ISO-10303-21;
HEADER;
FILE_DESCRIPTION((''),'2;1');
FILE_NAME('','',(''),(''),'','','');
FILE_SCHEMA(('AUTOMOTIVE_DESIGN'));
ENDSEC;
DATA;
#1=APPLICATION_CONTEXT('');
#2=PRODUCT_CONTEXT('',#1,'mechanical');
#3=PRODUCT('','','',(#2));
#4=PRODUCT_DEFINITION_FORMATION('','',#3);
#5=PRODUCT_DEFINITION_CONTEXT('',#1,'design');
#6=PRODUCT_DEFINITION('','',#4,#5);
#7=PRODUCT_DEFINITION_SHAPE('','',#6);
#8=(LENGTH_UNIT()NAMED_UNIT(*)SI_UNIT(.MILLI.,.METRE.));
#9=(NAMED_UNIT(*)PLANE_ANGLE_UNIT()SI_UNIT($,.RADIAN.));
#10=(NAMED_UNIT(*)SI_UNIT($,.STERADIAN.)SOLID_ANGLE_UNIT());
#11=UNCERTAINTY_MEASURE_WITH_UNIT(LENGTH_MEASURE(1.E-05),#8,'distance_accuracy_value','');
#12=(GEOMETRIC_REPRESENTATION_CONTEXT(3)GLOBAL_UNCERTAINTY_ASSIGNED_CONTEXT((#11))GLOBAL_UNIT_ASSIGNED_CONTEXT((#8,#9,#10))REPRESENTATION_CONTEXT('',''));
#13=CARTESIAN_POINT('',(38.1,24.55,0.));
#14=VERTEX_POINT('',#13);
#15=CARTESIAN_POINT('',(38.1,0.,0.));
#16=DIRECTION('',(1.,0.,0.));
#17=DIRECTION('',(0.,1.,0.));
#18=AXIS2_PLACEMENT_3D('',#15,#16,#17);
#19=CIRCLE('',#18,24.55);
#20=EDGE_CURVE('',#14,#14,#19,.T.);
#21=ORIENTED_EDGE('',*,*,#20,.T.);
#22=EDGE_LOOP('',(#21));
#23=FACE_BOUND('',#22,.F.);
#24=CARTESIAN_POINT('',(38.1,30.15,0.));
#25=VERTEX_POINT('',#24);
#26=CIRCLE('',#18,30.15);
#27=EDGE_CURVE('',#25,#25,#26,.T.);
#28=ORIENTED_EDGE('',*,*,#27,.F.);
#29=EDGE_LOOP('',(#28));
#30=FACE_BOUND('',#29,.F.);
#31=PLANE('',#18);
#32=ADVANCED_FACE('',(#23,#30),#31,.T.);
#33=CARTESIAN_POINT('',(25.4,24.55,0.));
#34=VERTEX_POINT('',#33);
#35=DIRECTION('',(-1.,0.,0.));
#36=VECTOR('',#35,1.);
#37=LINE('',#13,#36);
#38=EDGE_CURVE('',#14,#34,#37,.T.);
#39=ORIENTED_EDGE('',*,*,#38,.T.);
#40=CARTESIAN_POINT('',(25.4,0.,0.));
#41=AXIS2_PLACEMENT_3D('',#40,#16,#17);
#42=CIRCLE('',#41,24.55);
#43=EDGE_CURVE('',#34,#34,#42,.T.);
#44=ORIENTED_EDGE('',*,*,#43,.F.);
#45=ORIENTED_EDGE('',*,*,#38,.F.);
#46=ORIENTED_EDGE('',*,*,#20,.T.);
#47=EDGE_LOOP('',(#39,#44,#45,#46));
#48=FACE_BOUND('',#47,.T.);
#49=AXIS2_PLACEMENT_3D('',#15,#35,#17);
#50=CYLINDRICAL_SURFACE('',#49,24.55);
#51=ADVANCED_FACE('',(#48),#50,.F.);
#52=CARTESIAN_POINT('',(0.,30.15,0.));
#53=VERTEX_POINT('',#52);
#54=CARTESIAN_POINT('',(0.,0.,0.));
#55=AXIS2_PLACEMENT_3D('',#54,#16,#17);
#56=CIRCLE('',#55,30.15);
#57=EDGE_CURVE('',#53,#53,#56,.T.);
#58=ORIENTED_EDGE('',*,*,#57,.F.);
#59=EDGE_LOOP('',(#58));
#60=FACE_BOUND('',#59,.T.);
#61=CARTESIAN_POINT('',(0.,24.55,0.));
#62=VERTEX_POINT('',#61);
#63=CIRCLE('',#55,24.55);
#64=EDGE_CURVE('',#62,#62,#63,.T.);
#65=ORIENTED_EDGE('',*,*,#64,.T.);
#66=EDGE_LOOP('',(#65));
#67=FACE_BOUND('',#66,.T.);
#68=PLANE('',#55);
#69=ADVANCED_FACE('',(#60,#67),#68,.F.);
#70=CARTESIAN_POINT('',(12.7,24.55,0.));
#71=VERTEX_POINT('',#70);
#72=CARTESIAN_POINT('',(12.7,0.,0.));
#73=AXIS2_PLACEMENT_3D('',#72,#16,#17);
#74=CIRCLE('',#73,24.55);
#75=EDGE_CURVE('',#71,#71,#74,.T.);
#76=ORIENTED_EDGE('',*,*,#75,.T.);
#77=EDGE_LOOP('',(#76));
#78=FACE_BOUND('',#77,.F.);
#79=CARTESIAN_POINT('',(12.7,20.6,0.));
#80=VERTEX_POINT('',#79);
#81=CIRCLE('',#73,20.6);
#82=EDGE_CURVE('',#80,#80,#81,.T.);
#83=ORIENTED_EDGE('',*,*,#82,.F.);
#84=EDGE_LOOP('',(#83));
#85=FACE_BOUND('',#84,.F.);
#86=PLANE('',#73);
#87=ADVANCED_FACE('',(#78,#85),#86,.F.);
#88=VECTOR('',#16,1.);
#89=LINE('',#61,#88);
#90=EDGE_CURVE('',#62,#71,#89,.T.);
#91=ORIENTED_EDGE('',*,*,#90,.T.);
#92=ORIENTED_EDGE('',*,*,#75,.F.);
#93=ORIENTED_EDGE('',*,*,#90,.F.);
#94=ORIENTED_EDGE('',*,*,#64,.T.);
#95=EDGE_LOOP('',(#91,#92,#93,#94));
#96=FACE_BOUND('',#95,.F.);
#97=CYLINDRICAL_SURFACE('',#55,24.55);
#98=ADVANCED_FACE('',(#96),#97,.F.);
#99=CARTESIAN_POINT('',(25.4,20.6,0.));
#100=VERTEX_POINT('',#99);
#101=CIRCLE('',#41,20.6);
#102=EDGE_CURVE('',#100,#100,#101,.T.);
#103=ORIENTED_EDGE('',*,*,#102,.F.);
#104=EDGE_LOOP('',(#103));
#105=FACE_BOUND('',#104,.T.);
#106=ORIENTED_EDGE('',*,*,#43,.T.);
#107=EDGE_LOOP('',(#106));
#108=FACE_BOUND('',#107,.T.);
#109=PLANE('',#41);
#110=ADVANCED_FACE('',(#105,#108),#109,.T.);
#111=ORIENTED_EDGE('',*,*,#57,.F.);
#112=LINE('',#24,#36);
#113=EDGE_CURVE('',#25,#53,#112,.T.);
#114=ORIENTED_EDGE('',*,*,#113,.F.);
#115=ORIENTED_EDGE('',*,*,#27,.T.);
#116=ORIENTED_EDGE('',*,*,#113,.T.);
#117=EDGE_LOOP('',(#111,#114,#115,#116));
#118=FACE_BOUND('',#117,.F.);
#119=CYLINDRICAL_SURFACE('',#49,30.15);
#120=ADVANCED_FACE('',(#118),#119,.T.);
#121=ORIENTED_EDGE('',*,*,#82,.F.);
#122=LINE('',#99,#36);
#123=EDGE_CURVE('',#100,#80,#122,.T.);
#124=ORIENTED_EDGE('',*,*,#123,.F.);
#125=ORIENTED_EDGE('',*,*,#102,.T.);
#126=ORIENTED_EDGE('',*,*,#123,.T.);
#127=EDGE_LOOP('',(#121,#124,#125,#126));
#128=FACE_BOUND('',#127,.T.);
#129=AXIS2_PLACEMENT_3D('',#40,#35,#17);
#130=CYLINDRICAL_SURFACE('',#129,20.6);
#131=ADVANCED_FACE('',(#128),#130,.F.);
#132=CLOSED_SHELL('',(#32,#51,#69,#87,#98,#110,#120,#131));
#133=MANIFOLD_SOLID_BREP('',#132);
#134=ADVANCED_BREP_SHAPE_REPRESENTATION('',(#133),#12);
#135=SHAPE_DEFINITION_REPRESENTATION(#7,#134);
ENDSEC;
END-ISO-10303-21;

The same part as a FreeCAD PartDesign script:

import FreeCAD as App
import Part
import Sketcher
from FreeCAD import Vector
Q = App.Units.Quantity

doc = App.newDocument("Part")
body = doc.addObject("PartDesign::Body", "Body")

# Sketch on XY plane
sketch1 = doc.addObject("Sketcher::SketchObject", "Sketch")
body.addObject(sketch1)
sketch1.AttachmentSupport = (doc.XY_Plane, [""])
sketch1.MapMode = "FlatFace"
sketch1.addGeometry([
    Part.LineSegment(Vector(25.4, 24.55, 0), Vector(38.1, 24.55, 0)),  # 0
    Part.LineSegment(Vector(38.1, 24.55, 0), Vector(38.1, 30.15, 0)),  # 1
    Part.LineSegment(Vector(38.1, 30.15, 0), Vector(0, 30.15, 0)),  # 2
    Part.LineSegment(Vector(0, 30.15, 0), Vector(0, 24.55, 0)),  # 3
    Part.LineSegment(Vector(0, 24.55, 0), Vector(12.7, 24.55, 0)),  # 4
    Part.LineSegment(Vector(12.7, 24.55, 0), Vector(12.7, 20.6, 0)),  # 5
    Part.LineSegment(Vector(12.7, 20.6, 0), Vector(25.4, 20.6, 0)),  # 6
    Part.LineSegment(Vector(25.4, 20.6, 0), Vector(25.4, 24.55, 0)),  # 7
], False)
sketch1.addConstraint([
    Sketcher.Constraint("Coincident", 0, 2, 1, 1),
    Sketcher.Constraint("Coincident", 1, 2, 2, 1),
    Sketcher.Constraint("Coincident", 2, 2, 3, 1),
    Sketcher.Constraint("Coincident", 3, 2, 4, 1),
    Sketcher.Constraint("Coincident", 4, 2, 5, 1),
    Sketcher.Constraint("Coincident", 5, 2, 6, 1),
    Sketcher.Constraint("Coincident", 6, 2, 7, 1),
    Sketcher.Constraint("Coincident", 7, 2, 0, 1),
    Sketcher.Constraint("Horizontal", 0),
    Sketcher.Constraint("Vertical", 1),
    Sketcher.Constraint("Horizontal", 2),
    Sketcher.Constraint("Vertical", 3),
    Sketcher.Constraint("Horizontal", 4),
    Sketcher.Constraint("Vertical", 5),
    Sketcher.Constraint("Horizontal", 6),
    Sketcher.Constraint("Vertical", 7),
    Sketcher.Constraint("PointOnObject", 2, 2, -2),
    Sketcher.Constraint("Horizontal", 0, 2, 3, 2),
    Sketcher.Constraint("Equal", 0, 4),
    Sketcher.Constraint("Equal", 4, 6),
    Sketcher.Constraint("DistanceX", 0, 1, 0, 2, Q("0.5 in")),
    Sketcher.Constraint("DistanceY", 5, 2, 5, 1, Q("0.1555 in")),
    Sketcher.Constraint("DistanceY", -1, 1, 1, 2, Q("1.187 in")),
    Sketcher.Constraint("DistanceY", 1, 1, 1, 2, Q("5.6 mm")),
])
revolution = doc.addObject("PartDesign::Revolution", "Revolution")
body.addObject(revolution)
revolution.Profile = sketch1
revolution.ReferenceAxis = (sketch1, ["H_Axis"])
revolution.Angle = 360

doc.recompute()
